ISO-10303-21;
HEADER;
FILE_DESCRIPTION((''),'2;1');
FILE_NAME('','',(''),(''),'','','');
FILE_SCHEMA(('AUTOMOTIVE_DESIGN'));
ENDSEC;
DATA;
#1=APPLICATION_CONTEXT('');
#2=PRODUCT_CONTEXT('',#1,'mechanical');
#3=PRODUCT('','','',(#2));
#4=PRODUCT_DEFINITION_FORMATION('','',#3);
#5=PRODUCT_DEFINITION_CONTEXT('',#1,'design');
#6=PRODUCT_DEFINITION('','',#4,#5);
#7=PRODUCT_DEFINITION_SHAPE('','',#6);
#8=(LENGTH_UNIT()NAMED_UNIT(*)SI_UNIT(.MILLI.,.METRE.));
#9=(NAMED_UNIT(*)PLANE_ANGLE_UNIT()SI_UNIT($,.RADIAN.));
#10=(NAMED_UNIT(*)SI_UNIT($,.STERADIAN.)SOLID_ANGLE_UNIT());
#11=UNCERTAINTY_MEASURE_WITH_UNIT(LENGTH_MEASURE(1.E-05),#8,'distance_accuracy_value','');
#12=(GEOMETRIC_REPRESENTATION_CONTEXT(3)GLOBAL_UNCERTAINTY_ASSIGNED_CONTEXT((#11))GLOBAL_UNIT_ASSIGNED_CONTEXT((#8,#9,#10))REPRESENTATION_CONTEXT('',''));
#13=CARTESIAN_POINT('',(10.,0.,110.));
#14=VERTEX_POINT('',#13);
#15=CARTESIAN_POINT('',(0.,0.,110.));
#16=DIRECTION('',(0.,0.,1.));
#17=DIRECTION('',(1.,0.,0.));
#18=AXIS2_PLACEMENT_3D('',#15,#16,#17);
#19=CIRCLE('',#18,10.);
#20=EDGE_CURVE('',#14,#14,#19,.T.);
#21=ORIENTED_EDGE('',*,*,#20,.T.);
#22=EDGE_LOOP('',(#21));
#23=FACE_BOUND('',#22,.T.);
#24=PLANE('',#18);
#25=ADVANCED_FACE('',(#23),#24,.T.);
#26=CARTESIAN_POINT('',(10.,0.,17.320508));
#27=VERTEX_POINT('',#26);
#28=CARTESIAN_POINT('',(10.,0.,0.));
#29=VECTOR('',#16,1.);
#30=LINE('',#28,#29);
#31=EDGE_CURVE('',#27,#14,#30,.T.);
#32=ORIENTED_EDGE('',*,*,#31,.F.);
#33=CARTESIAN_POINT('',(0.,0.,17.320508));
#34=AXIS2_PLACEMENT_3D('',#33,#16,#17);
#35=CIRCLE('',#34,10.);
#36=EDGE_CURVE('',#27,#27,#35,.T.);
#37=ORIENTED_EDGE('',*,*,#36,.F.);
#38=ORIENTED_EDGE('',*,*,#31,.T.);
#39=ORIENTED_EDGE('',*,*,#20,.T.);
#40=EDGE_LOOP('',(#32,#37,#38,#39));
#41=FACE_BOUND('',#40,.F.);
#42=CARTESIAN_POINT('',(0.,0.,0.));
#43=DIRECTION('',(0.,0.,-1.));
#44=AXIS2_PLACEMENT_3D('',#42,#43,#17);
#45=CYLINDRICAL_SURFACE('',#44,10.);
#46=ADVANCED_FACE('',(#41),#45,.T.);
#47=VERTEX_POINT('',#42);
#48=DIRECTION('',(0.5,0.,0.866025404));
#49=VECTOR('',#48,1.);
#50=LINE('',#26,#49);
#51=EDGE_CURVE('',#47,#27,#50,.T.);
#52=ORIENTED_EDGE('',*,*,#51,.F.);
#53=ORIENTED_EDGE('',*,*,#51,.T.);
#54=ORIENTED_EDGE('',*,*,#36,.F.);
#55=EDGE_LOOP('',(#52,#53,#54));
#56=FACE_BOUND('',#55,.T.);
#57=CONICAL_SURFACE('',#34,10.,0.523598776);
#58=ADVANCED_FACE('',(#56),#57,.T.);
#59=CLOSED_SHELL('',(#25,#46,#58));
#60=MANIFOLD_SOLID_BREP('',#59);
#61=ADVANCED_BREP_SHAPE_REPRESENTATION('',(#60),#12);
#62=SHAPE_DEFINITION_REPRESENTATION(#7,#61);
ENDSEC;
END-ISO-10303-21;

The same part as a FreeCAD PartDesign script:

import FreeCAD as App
import Part
import Sketcher


def edges_at(feature, points):
    """Names of the edges that pass closest to the given points."""
    edges = feature.Shape.Edges
    near = lambda p: min(range(len(edges)), key=lambda i: edges[i].distToShape(Part.Vertex(*p))[0])
    return sorted({f"Edge{near(p) + 1}" for p in points})

doc = App.newDocument("Part")
body = doc.addObject("PartDesign::Body", "Body")

sketch1 = body.newObject("Sketcher::SketchObject", "Sketch")
sketch1.AttachmentSupport = (doc.getObject("XY_Plane"), [""])
sketch1.MapMode = "FlatFace"
sketch1.addGeometry(Part.Circle(App.Vector(0, 0, 0), App.Vector(0, 0, 1), 10), False)
sketch1.addConstraint([
    Sketcher.Constraint("Coincident", 0, 3, -1, 1),
    Sketcher.Constraint("Diameter", 0, 20.0),
])
pad1 = body.newObject("PartDesign::Pad", "Pad")
pad1.Profile = sketch1
pad1.Length = 110
doc.recompute()

chamfer = body.newObject("PartDesign::Chamfer", "Chamfer")
chamfer.Base = (pad1, edges_at(pad1, [(-10, 0, 0)]))
chamfer.ChamferType = "Distance and Angle"
chamfer.Size = 10
chamfer.Angle = 60
chamfer.FlipDirection = True

doc.recompute()
